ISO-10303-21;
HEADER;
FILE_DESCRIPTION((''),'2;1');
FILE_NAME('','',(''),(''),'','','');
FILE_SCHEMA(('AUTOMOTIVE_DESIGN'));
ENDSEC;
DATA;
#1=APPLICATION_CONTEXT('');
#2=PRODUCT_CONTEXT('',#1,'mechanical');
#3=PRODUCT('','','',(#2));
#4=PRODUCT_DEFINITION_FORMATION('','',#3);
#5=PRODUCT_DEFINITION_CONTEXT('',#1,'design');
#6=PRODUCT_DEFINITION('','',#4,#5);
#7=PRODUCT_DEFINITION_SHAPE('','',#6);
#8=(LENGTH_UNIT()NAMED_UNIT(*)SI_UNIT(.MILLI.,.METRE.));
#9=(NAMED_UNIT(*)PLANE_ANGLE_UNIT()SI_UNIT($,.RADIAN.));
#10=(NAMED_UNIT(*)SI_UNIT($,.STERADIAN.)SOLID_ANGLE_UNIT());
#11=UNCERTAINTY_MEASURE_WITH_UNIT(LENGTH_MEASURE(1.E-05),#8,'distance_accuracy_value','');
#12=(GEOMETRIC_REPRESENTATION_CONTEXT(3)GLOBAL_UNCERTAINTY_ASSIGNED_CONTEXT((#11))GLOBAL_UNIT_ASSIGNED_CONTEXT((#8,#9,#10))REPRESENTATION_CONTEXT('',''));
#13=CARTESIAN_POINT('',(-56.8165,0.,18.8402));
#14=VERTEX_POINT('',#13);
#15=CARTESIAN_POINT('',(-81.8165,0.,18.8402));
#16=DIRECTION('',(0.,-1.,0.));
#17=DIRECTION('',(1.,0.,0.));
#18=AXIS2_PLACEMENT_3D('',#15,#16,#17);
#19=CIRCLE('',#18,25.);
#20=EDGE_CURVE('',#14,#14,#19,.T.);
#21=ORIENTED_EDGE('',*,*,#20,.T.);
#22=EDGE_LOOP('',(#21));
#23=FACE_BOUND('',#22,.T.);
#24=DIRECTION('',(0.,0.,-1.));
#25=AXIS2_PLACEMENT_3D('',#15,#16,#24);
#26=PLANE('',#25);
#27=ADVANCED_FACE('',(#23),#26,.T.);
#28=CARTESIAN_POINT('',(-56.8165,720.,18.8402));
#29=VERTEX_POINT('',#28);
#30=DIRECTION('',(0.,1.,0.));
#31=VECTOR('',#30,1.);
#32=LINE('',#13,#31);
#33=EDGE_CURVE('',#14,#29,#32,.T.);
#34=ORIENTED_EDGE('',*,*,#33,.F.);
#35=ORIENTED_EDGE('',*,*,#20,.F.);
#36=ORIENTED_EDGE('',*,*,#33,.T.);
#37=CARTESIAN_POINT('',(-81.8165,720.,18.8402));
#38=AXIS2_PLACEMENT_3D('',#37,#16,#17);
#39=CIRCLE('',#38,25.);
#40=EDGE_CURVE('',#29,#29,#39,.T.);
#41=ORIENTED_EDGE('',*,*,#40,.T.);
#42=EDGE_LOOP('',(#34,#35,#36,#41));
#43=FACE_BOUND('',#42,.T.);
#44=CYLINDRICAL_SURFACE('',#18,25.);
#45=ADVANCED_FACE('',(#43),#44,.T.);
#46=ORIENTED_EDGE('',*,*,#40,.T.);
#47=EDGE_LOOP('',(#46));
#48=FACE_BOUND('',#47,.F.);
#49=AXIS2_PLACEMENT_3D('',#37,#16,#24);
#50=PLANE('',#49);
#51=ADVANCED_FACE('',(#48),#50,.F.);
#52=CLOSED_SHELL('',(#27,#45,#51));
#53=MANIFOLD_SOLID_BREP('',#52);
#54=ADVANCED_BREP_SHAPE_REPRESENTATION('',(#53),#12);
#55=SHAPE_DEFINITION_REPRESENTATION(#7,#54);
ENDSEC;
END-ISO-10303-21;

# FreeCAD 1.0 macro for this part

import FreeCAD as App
import Part
import Sketcher

doc = App.newDocument("Part")
body = doc.addObject("PartDesign::Body", "Body")

sketch1 = doc.addObject("Sketcher::SketchObject", "Sketch")
body.addObject(sketch1)
sketch1.AttachmentSupport = (doc.XZ_Plane, [""])
sketch1.MapMode = "FlatFace"
sketch1.addGeometry(Part.Circle(App.Vector(-81.8165, 18.8402, 0), App.Vector(0, 0, 1), 25), False)
sketch1.addConstraint([
    Sketcher.Constraint("Diameter", 0, 50.0),
    Sketcher.Constraint("DistanceX", 0, 3, -1, 1, 81.8165),
    Sketcher.Constraint("DistanceY", -1, 1, 0, 3, 18.8402),
])
pad1 = doc.addObject("PartDesign::Pad", "Pad")
body.addObject(pad1)
pad1.Profile = sketch1
pad1.Length = 720
pad1.Reversed = True

doc.recompute()
